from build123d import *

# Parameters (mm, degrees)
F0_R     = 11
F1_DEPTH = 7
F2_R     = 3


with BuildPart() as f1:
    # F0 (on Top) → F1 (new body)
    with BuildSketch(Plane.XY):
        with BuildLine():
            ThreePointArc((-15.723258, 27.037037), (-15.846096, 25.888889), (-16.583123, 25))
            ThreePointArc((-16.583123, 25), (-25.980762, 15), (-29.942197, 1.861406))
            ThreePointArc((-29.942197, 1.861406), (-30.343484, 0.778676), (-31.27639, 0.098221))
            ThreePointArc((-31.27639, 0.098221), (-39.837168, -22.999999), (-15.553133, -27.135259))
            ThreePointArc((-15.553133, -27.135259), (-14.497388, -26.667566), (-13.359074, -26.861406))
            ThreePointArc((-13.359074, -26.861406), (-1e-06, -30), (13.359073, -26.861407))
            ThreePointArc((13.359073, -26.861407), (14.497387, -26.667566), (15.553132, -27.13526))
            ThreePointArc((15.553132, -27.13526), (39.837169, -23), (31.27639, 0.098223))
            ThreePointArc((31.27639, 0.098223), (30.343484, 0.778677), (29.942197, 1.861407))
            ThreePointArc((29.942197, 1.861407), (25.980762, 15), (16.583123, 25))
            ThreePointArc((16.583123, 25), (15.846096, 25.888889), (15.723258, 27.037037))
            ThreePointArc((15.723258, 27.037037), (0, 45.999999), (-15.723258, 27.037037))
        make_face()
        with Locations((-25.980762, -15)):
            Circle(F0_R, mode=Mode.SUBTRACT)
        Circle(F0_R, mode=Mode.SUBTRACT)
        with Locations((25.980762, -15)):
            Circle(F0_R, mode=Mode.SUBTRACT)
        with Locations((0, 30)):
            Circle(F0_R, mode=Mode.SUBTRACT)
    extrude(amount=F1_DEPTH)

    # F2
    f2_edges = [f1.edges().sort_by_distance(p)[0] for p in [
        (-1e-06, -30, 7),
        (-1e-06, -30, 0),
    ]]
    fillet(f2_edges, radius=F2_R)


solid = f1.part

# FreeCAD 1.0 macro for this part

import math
import FreeCAD as App
import Part
import Sketcher
from FreeCAD import Vector


def edges_at(feature, points):
    """Names of the edges that pass closest to the given points."""
    edges = feature.Shape.Edges
    near = lambda p: min(range(len(edges)), key=lambda i: edges[i].distToShape(Part.Vertex(*p))[0])
    return sorted({f"Edge{near(p) + 1}" for p in points})

doc = App.newDocument("Part")
params = doc.addObject("Spreadsheet::Sheet", "Params")
for row, (alias, value) in enumerate([
    ("sketch1_diameter", "22 mm"),
    ("sketch1_radius", "2.000002 mm"),
    ("sketch1_radius2", "15.999999 mm"),
    ("sketch1_radius3", "30.000001 mm"),
    ("sketch1_radius4", "29.999998 mm"),
    ("pad1_length", "7 mm"),
    ("fillet_radius", "3 mm"),
], start=1):
    params.set(f"A{row}", alias)
    params.set(f"B{row}", "=" + value)
    params.setAlias(f"B{row}", alias)

body = doc.addObject("PartDesign::Body", "Body")

sketch1 = body.newObject("Sketcher::SketchObject", "Sketch")
sketch1.AttachmentSupport = (doc.getObject("XY_Plane"), [""])
sketch1.MapMode = "FlatFace"
sketch1.addGeometry(Part.ArcOfCircle(Part.Circle(Vector(-17.7, 26.7, 0), Vector(0, 0, 1), 2), math.radians(-56), math.radians(11)), False)
sketch1.addGeometry(Part.ArcOfCircle(Part.Circle(Vector(0, 0, 0), Vector(0, 0, 1), 30), math.radians(124), math.radians(176)), False)
sketch1.addGeometry(Part.ArcOfCircle(Part.Circle(Vector(-31.9, 2, 0), Vector(0, 0, 1), 2), math.radians(-71), math.radians(-4)), False)
sketch1.addGeometry(Part.ArcOfCircle(Part.Circle(Vector(-26, -15, 0), Vector(0, 0, 1), 16), math.radians(109), math.radians(311)), False)
sketch1.addGeometry(Part.ArcOfCircle(Part.Circle(Vector(-14.2, -28.7, 0), Vector(0, 0, 1), 2), math.radians(64), math.radians(131)), False)
sketch1.addGeometry(Part.ArcOfCircle(Part.Circle(Vector(0, 0, 0), Vector(0, 0, 1), 30), math.radians(-116), math.radians(-64)), False)
sketch1.addGeometry(Part.ArcOfCircle(Part.Circle(Vector(14.2, -28.7, 0), Vector(0, 0, 1), 2), math.radians(49), math.radians(116)), False)
sketch1.addGeometry(Part.ArcOfCircle(Part.Circle(Vector(26, -15, 0), Vector(0, 0, 1), 16), math.radians(-131), math.radians(71)), False)
sketch1.addGeometry(Part.ArcOfCircle(Part.Circle(Vector(31.9, 2, 0), Vector(0, 0, 1), 2), math.radians(-176), math.radians(-109)), False)
sketch1.addGeometry(Part.ArcOfCircle(Part.Circle(Vector(0, 0, 0), Vector(0, 0, 1), 30), math.radians(4), math.radians(56)), False)
sketch1.addGeometry(Part.ArcOfCircle(Part.Circle(Vector(17.7, 26.7, 0), Vector(0, 0, 1), 2), math.radians(169), math.radians(236)), False)
sketch1.addGeometry(Part.ArcOfCircle(Part.Circle(Vector(0, 30, 0), Vector(0, 0, 1), 16), math.radians(-11), math.radians(191)), False)
sketch1.addGeometry(Part.Circle(Vector(-26, -15, 0), Vector(0, 0, 1), 11), False)
sketch1.addGeometry(Part.Circle(Vector(26, -15, 0), Vector(0, 0, 1), 11), False)
sketch1.addGeometry(Part.Circle(Vector(0, 0, 0), Vector(0, 0, 1), 11), False)
sketch1.addGeometry(Part.Circle(Vector(0, 30, 0), Vector(0, 0, 1), 11), False)
sketch1.addConstraint(Sketcher.Constraint("Tangent", 0, 1, 1, 1))
sketch1.addConstraint(Sketcher.Constraint("Tangent", 1, 2, 2, 2))
sketch1.addConstraint(Sketcher.Constraint("Tangent", 2, 1, 3, 1))
sketch1.addConstraint(Sketcher.Constraint("Tangent", 3, 2, 4, 2))
sketch1.addConstraint(Sketcher.Constraint("Tangent", 4, 1, 5, 1))
sketch1.addConstraint(Sketcher.Constraint("Tangent", 5, 2, 6, 2))
sketch1.addConstraint(Sketcher.Constraint("Tangent", 6, 1, 7, 1))
sketch1.addConstraint(Sketcher.Constraint("Tangent", 7, 2, 8, 2))
sketch1.addConstraint(Sketcher.Constraint("Tangent", 8, 1, 9, 1))
sketch1.addConstraint(Sketcher.Constraint("Tangent", 9, 2, 10, 2))
sketch1.addConstraint(Sketcher.Constraint("Tangent", 10, 1, 11, 1))
sketch1.addConstraint(Sketcher.Constraint("Tangent", 11, 2, 0, 2))
sketch1.addConstraint(Sketcher.Constraint("Coincident", 1, 3, -1, 1))
sketch1.addConstraint(Sketcher.Constraint("Coincident", 5, 3, -1, 1))
sketch1.addConstraint(Sketcher.Constraint("Coincident", 9, 3, -1, 1))
sketch1.addConstraint(Sketcher.Constraint("Coincident", 14, 3, -1, 1))
sketch1.addConstraint(Sketcher.Constraint("Coincident", 12, 3, 3, 3))
sketch1.addConstraint(Sketcher.Constraint("Coincident", 13, 3, 7, 3))
sketch1.addConstraint(Sketcher.Constraint("Coincident", 15, 3, 11, 3))
sketch1.addConstraint(Sketcher.Constraint("Equal", 0, 2))
sketch1.addConstraint(Sketcher.Constraint("Equal", 2, 4))
sketch1.addConstraint(Sketcher.Constraint("Equal", 3, 7))
sketch1.addConstraint(Sketcher.Constraint("Equal", 1, 9))
sketch1.addConstraint(Sketcher.Constraint("Equal", 4, 10))
sketch1.addConstraint(Sketcher.Constraint("Equal", 7, 11))
sketch1.addConstraint(Sketcher.Constraint("Equal", 12, 13))
sketch1.addConstraint(Sketcher.Constraint("Equal", 13, 14))
sketch1.addConstraint(Sketcher.Constraint("Equal", 14, 15))
sketch1.addConstraint(Sketcher.Constraint("Symmetric", 4, 3, 6, 3, -2))
sketch1.addConstraint(Sketcher.Constraint("Symmetric", 2, 3, 8, 3, -2))
sketch1.addConstraint(Sketcher.Constraint("PointOnObject", 11, 3, -2))
sketch1.addConstraint(Sketcher.Constraint("Diameter", 12, 22.0))
sketch1.addConstraint(Sketcher.Constraint("Radius", 0, 2.000002))
sketch1.addConstraint(Sketcher.Constraint("Radius", 3, 15.999999))
sketch1.addConstraint(Sketcher.Constraint("Radius", 5, 30.000001))
sketch1.addConstraint(Sketcher.Constraint("Radius", 9, 29.999998))
sketch1.addConstraint(Sketcher.Constraint("DistanceY", 3, 3, -1, 1, 15.0))
sketch1.addConstraint(Sketcher.Constraint("DistanceY", -1, 1, 11, 3, 29.999999))
sketch1.addConstraint(Sketcher.Constraint("DistanceY", -1, 1, 2, 3, 1.9855))
sketch1.setExpression("Constraints[31]", "Params.sketch1_diameter")
sketch1.setExpression("Constraints[32]", "Params.sketch1_radius")
sketch1.setExpression("Constraints[33]", "Params.sketch1_radius2")
sketch1.setExpression("Constraints[34]", "Params.sketch1_radius3")
sketch1.setExpression("Constraints[35]", "Params.sketch1_radius4")
pad1 = body.newObject("PartDesign::Pad", "Pad")
pad1.Profile = sketch1
pad1.setExpression("Length", "Params.pad1_length")
doc.recompute()

fillet = body.newObject("PartDesign::Fillet", "Fillet")
fillet.Base = (pad1, edges_at(pad1, [(0, -30, 7), (0, -30, 0)]))
fillet.setExpression("Radius", "Params.fillet_radius")

doc.recompute()
